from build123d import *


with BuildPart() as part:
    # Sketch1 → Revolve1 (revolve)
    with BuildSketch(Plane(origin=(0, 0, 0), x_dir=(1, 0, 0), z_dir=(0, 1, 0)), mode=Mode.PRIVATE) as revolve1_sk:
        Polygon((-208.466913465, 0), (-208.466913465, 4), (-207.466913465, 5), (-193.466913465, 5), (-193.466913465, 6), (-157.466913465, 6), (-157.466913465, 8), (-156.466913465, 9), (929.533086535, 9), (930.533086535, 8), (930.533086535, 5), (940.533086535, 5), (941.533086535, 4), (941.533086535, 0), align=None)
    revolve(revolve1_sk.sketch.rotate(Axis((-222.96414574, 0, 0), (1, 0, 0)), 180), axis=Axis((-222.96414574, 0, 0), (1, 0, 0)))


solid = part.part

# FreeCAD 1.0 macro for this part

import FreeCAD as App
import Part
import Sketcher
from FreeCAD import Vector


def add_polygon(sketch, points):
    """Adds a closed chain of lines whose ends are joined by coincident constraints."""
    first, n = sketch.GeometryCount, len(points)
    for a, b in zip(points, points[1:] + points[:1]):
        sketch.addGeometry(Part.LineSegment(App.Vector(*a, 0), App.Vector(*b, 0)), False)
    for i in range(n):
        sketch.addConstraint(Sketcher.Constraint("Coincident", first + i, 2, first + (i + 1) % n, 1))

doc = App.newDocument("Part")
body = doc.addObject("PartDesign::Body", "Body")

# Sketch on XZ plane
sketch1 = body.newObject("Sketcher::SketchObject", "Sketch")
sketch1.AttachmentSupport = (doc.getObject("XZ_Plane"), [""])
sketch1.MapMode = "FlatFace"
add_polygon(sketch1, [(-208.5, -4), (-208.5, 0), (941.5, 0), (941.5, -4), (940.5, -5), (930.5, -5), (930.5, -8), (929.5, -9), (-156.5, -9), (-157.5, -8), (-157.5, -6), (-193.5, -6), (-193.5, -5), (-207.5, -5)])  # lines 0-13
sketch1.addConstraint([
    Sketcher.Constraint("Vertical", 0),
    Sketcher.Constraint("Horizontal", 1),
    Sketcher.Constraint("Vertical", 2),
    Sketcher.Constraint("Horizontal", 4),
    Sketcher.Constraint("Vertical", 5),
    Sketcher.Constraint("Horizontal", 7),
    Sketcher.Constraint("Vertical", 9),
    Sketcher.Constraint("Horizontal", 10),
    Sketcher.Constraint("Vertical", 11),
    Sketcher.Constraint("Horizontal", 12),
    Sketcher.Constraint("PointOnObject", 0, 2, -1),
    Sketcher.Constraint("Parallel", 3, 6),
    Sketcher.Constraint("Perpendicular", 6, 8),
    Sketcher.Constraint("Parallel", 8, 13),
    Sketcher.Constraint("Horizontal", 5, 2, 8, 2),
    Sketcher.Constraint("Horizontal", 4, 2, 11, 2),
    Sketcher.Constraint("Horizontal", 2, 2, 13, 2),
    Sketcher.Constraint("Equal", 3, 6),
    Sketcher.Constraint("Equal", 6, 8),
    Sketcher.Constraint("DistanceX", 1, 1, 1, 2, 1150.0),
    Sketcher.Constraint("DistanceX", 4, 2, 4, 1, 10.0),
    Sketcher.Constraint("DistanceX", 7, 2, 7, 1, 1086.0),
    Sketcher.Constraint("DistanceX", 10, 2, 10, 1, 36.0),
    Sketcher.Constraint("DistanceX", 12, 2, 12, 1, 14.0),
    Sketcher.Constraint("DistanceY", 0, 1, 0, 2, 4.0),
    Sketcher.Constraint("DistanceY", 5, 2, 5, 1, 3.0),
    Sketcher.Constraint("DistanceY", 9, 1, 9, 2, 2.0),
    Sketcher.Constraint("DistanceX", 0, 2, -1, 1, 208.466913),
])
revolution = body.newObject("PartDesign::Revolution", "Revolution")
revolution.Profile = sketch1
revolution.ReferenceAxis = (sketch1, ["H_Axis"])
revolution.Angle = 360

doc.recompute()
